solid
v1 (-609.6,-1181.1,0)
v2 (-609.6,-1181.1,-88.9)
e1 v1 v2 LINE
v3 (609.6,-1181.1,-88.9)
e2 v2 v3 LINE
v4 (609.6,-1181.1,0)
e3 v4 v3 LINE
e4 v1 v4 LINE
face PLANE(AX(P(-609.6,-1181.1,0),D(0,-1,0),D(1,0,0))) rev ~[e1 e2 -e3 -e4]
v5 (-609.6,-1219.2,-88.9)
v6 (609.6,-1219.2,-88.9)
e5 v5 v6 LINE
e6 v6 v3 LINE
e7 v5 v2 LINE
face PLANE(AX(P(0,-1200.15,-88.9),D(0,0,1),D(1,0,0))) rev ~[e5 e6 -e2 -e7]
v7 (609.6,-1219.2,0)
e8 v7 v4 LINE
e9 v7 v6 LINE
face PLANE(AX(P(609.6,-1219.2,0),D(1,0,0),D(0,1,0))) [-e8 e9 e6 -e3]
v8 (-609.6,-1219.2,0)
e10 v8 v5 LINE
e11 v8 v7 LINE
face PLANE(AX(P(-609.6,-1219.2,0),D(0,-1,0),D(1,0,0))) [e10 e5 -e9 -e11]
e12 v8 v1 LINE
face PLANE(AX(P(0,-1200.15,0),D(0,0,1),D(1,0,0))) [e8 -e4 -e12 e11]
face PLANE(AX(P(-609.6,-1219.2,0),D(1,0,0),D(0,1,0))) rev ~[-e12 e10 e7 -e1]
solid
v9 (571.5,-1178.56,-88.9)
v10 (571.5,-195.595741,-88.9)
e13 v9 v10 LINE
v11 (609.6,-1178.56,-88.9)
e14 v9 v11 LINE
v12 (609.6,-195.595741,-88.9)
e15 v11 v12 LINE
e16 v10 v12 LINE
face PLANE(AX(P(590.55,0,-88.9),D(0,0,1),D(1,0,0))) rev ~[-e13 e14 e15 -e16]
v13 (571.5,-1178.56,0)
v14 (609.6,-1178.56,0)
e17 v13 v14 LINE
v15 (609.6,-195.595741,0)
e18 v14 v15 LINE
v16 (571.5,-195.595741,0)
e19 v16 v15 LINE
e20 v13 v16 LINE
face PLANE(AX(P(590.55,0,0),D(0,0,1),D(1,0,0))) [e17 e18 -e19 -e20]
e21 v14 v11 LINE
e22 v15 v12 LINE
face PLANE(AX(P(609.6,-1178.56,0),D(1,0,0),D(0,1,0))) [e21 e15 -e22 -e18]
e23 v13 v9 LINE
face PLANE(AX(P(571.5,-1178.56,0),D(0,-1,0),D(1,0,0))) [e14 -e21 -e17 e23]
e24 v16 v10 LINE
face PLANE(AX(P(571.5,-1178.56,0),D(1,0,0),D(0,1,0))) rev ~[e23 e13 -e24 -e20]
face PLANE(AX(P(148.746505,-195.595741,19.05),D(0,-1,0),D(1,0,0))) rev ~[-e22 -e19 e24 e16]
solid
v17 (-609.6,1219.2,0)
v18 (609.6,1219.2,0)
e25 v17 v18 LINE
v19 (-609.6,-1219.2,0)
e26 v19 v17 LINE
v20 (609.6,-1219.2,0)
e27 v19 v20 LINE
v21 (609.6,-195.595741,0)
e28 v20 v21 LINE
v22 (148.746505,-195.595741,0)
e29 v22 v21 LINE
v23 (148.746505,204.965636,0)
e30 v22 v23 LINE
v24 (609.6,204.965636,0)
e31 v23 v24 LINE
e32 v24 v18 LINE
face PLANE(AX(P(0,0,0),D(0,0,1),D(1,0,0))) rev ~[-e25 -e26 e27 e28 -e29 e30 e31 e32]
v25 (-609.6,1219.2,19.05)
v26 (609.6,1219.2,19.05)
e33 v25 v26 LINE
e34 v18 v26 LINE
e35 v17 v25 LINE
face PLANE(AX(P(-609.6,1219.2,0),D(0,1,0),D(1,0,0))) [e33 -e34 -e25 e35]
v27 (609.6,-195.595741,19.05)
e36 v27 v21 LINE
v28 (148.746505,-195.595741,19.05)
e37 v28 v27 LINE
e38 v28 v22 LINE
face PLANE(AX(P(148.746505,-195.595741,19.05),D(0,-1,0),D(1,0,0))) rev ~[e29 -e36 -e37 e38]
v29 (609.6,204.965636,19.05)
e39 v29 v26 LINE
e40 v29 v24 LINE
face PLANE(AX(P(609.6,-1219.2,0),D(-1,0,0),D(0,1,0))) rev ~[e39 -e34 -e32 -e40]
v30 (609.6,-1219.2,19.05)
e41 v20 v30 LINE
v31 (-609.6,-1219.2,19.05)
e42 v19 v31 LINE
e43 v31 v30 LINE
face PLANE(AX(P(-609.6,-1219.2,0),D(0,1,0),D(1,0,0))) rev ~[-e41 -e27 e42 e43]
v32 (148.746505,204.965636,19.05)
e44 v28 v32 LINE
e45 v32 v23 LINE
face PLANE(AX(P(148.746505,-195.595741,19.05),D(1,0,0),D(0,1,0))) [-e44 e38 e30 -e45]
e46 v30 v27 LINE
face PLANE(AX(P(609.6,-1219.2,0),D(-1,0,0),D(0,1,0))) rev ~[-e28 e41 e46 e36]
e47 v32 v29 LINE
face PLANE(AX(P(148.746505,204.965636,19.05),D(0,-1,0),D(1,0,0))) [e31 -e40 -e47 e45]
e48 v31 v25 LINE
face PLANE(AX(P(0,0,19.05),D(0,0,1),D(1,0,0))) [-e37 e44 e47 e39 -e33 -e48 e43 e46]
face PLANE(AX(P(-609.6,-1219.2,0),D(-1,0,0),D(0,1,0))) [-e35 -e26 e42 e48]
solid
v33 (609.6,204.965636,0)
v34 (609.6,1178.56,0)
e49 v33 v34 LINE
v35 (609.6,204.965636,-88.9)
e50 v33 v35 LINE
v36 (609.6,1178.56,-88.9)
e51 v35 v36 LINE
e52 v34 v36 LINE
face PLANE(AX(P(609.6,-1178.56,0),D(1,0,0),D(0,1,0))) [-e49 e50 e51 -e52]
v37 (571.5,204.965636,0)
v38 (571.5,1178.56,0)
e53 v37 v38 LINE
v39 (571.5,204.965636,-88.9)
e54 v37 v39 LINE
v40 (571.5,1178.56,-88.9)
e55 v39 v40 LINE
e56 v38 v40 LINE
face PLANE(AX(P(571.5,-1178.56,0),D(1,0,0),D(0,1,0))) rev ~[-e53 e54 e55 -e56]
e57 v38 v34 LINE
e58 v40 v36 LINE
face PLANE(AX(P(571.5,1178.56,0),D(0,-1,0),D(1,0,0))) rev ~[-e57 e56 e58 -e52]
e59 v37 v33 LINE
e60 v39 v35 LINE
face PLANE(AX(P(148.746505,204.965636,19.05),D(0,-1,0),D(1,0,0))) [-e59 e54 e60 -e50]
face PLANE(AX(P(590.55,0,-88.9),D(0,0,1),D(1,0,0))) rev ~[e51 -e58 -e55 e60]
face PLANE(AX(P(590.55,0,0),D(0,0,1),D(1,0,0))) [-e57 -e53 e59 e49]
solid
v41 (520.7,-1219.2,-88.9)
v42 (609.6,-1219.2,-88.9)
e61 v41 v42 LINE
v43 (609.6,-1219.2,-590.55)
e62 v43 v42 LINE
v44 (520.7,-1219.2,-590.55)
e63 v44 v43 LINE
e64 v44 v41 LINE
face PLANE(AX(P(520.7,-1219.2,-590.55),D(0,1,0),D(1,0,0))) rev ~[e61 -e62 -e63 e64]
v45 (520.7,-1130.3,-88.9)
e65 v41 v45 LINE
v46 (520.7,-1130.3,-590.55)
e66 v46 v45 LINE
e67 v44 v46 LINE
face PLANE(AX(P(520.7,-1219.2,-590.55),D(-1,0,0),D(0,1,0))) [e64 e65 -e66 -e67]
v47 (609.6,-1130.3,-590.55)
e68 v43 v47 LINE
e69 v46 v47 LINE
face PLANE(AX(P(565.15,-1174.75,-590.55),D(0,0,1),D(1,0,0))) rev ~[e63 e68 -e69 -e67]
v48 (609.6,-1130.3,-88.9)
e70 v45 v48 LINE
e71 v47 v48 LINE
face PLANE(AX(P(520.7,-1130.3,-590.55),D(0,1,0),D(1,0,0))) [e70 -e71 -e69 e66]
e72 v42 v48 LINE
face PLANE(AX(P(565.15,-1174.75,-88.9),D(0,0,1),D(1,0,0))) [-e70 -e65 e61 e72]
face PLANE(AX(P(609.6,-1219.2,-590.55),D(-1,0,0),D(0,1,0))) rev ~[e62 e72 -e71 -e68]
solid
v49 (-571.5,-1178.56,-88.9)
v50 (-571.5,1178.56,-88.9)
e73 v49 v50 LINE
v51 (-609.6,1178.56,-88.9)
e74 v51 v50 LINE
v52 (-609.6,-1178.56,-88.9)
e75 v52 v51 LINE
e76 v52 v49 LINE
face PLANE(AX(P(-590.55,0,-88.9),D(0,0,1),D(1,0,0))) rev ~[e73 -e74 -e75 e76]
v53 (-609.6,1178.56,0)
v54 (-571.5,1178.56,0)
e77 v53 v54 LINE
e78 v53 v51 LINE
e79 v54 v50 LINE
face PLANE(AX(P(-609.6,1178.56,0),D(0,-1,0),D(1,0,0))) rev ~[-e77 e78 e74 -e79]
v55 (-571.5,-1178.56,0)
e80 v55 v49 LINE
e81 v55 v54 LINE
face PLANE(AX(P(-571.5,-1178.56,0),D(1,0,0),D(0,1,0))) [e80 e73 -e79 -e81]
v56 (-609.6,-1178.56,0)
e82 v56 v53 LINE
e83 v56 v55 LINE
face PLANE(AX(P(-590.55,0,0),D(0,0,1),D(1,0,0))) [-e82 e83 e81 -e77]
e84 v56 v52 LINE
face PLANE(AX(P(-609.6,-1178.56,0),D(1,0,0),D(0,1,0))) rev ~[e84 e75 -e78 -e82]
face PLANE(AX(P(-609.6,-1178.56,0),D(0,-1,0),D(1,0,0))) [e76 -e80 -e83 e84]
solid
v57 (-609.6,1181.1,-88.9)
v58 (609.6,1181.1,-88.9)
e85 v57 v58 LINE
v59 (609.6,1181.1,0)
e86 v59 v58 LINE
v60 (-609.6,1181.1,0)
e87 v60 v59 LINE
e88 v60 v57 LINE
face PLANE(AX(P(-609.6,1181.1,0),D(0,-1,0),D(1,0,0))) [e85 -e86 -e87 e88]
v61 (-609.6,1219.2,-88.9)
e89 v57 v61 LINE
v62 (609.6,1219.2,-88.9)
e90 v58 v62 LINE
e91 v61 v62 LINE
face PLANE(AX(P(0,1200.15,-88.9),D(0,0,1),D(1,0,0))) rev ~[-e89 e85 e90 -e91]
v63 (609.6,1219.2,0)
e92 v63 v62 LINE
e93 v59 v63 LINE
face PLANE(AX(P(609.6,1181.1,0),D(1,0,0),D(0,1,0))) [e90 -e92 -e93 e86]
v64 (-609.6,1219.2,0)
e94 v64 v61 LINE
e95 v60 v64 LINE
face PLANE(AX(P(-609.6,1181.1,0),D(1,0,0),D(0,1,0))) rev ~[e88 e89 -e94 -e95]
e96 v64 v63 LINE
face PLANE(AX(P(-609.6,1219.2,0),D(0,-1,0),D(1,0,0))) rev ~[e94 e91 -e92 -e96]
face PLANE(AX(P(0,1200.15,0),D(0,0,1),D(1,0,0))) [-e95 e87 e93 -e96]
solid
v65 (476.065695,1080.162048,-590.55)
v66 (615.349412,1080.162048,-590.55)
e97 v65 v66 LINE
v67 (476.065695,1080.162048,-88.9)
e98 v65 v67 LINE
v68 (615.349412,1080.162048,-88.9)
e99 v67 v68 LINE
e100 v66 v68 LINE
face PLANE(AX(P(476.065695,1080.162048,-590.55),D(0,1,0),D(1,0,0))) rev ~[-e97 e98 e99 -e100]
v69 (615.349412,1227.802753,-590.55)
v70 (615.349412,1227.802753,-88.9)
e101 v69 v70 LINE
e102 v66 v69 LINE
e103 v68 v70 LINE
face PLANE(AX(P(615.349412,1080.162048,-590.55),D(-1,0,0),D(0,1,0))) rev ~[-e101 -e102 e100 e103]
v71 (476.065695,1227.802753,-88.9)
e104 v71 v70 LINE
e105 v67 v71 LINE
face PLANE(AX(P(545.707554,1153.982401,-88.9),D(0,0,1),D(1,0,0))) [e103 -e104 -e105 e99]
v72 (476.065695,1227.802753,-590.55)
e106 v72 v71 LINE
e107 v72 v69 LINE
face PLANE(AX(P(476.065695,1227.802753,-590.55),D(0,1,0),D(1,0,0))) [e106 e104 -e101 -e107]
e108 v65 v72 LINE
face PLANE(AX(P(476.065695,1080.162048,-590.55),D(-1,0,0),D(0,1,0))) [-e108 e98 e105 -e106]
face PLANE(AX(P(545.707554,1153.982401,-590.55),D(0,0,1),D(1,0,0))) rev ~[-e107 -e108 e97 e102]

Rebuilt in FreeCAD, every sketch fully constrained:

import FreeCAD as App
import Part
import Sketcher
from FreeCAD import Vector
Q = App.Units.Quantity

doc = App.newDocument("Part")
body = doc.addObject("PartDesign::Body", "Body")

# Sketch on XY plane
sketch1 = body.newObject("Sketcher::SketchObject", "Sketch")
sketch1.AttachmentSupport = (doc.getObject("XY_Plane"), [""])
sketch1.MapMode = "FlatFace"
sketch1.addGeometry(Part.LineSegment(Vector(-609.6, 1219.2, 0), Vector(-609.6, -1219.2, 0)), False)
sketch1.addGeometry(Part.LineSegment(Vector(-609.6, -1219.2, 0), Vector(609.6, -1219.2, 0)), False)
sketch1.addGeometry(Part.LineSegment(Vector(609.6, -1219.2, 0), Vector(609.6, 1219.2, 0)), False)
sketch1.addGeometry(Part.LineSegment(Vector(609.6, 1219.2, 0), Vector(-609.6, 1219.2, 0)), False)
sketch1.addConstraint(Sketcher.Constraint("Coincident", 0, 2, 1, 1))
sketch1.addConstraint(Sketcher.Constraint("Coincident", 1, 2, 2, 1))
sketch1.addConstraint(Sketcher.Constraint("Coincident", 2, 2, 3, 1))
sketch1.addConstraint(Sketcher.Constraint("Coincident", 3, 2, 0, 1))
sketch1.addConstraint(Sketcher.Constraint("Vertical", 0))
sketch1.addConstraint(Sketcher.Constraint("Horizontal", 1))
sketch1.addConstraint(Sketcher.Constraint("Vertical", 2))
sketch1.addConstraint(Sketcher.Constraint("Horizontal", 3))
sketch1.addConstraint(Sketcher.Constraint("Symmetric", 0, 2, 2, 2, -1, 1))
sketch1.addConstraint(Sketcher.Constraint("DistanceX", 1, 1, 1, 2, Q("48 in")))
sketch1.addConstraint(Sketcher.Constraint("DistanceY", 0, 2, 0, 1, Q("96 in")))
pad1 = body.newObject("PartDesign::Pad", "Pad")
pad1.Profile = sketch1
pad1.Length = Q("0.75 in")
body2 = doc.addObject("PartDesign::Body", "Body001")

# Sketch on XY plane
sketch2 = body2.newObject("Sketcher::SketchObject", "Sketch001")
sketch2.AttachmentSupport = (doc.getObject("XY_Plane001"), [""])
sketch2.MapMode = "FlatFace"
sketch2.addGeometry(Part.LineSegment(Vector(-609.6, 1219.2, 0), Vector(-609.6, 1181.1, 0)), False)
sketch2.addGeometry(Part.LineSegment(Vector(-609.6, 1181.1, 0), Vector(609.6, 1181.1, 0)), False)
sketch2.addGeometry(Part.LineSegment(Vector(609.6, 1181.1, 0), Vector(609.6, 1219.2, 0)), False)
sketch2.addGeometry(Part.LineSegment(Vector(609.6, 1219.2, 0), Vector(-609.6, 1219.2, 0)), False)
sketch2.addConstraint(Sketcher.Constraint("Coincident", 0, 2, 1, 1))
sketch2.addConstraint(Sketcher.Constraint("Coincident", 1, 2, 2, 1))
sketch2.addConstraint(Sketcher.Constraint("Coincident", 2, 2, 3, 1))
sketch2.addConstraint(Sketcher.Constraint("Coincident", 3, 2, 0, 1))
sketch2.addConstraint(Sketcher.Constraint("Vertical", 0))
sketch2.addConstraint(Sketcher.Constraint("Horizontal", 1))
sketch2.addConstraint(Sketcher.Constraint("Vertical", 2))
sketch2.addConstraint(Sketcher.Constraint("Horizontal", 3))
sketch2.addConstraint(Sketcher.Constraint("DistanceX", 1, 1, 1, 2, Q("48 in")))
sketch2.addConstraint(Sketcher.Constraint("DistanceY", 0, 2, 0, 1, Q("1.5 in")))
sketch2.addConstraint(Sketcher.Constraint("DistanceX", 0, 2, -1, 1, Q("24 in")))
sketch2.addConstraint(Sketcher.Constraint("DistanceY", -1, 1, 2, 2, Q("48 in")))
pad2 = body2.newObject("PartDesign::Pad", "Pad001")
pad2.Profile = sketch2
pad2.Length = Q("3.5 in")
pad2.Reversed = True
body3 = doc.addObject("PartDesign::Body", "Body002")

# Sketch on XY plane
sketch3 = body3.newObject("Sketcher::SketchObject", "Sketch002")
sketch3.AttachmentSupport = (doc.getObject("XY_Plane002"), [""])
sketch3.MapMode = "FlatFace"
sketch3.addGeometry(Part.LineSegment(Vector(-609.6, -1181.1, 0), Vector(-609.6, -1219.2, 0)), False)
sketch3.addGeometry(Part.LineSegment(Vector(-609.6, -1219.2, 0), Vector(609.6, -1219.2, 0)), False)
sketch3.addGeometry(Part.LineSegment(Vector(609.6, -1219.2, 0), Vector(609.6, -1181.1, 0)), False)
sketch3.addGeometry(Part.LineSegment(Vector(609.6, -1181.1, 0), Vector(-609.6, -1181.1, 0)), False)
sketch3.addConstraint(Sketcher.Constraint("Coincident", 0, 2, 1, 1))
sketch3.addConstraint(Sketcher.Constraint("Coincident", 1, 2, 2, 1))
sketch3.addConstraint(Sketcher.Constraint("Coincident", 2, 2, 3, 1))
sketch3.addConstraint(Sketcher.Constraint("Coincident", 3, 2, 0, 1))
sketch3.addConstraint(Sketcher.Constraint("Vertical", 0))
sketch3.addConstraint(Sketcher.Constraint("Horizontal", 1))
sketch3.addConstraint(Sketcher.Constraint("Vertical", 2))
sketch3.addConstraint(Sketcher.Constraint("Horizontal", 3))
sketch3.addConstraint(Sketcher.Constraint("DistanceX", 1, 1, 1, 2, Q("48 in")))
sketch3.addConstraint(Sketcher.Constraint("DistanceY", 0, 2, 0, 1, Q("1.5 in")))
sketch3.addConstraint(Sketcher.Constraint("DistanceX", 0, 2, -1, 1, Q("24 in")))
sketch3.addConstraint(Sketcher.Constraint("DistanceY", 0, 2, -1, 1, Q("48 in")))
pad3 = body3.newObject("PartDesign::Pad", "Pad002")
pad3.Profile = sketch3
pad3.Length = Q("3.5 in")
pad3.Reversed = True
body4 = doc.addObject("PartDesign::Body", "Body003")

# Sketch on XY plane
sketch4 = body4.newObject("Sketcher::SketchObject", "Sketch003")
sketch4.AttachmentSupport = (doc.getObject("XY_Plane003"), [""])
sketch4.MapMode = "FlatFace"
sketch4.addGeometry(Part.LineSegment(Vector(-609.6, 1178.56, 0), Vector(-609.6, -1178.56, 0)), False)
sketch4.addGeometry(Part.LineSegment(Vector(-609.6, -1178.56, 0), Vector(-571.5, -1178.56, 0)), False)
sketch4.addGeometry(Part.LineSegment(Vector(-571.5, -1178.56, 0), Vector(-571.5, 1178.56, 0)), False)
sketch4.addGeometry(Part.LineSegment(Vector(-571.5, 1178.56, 0), Vector(-609.6, 1178.56, 0)), False)
sketch4.addConstraint(Sketcher.Constraint("Coincident", 0, 2, 1, 1))
sketch4.addConstraint(Sketcher.Constraint("Coincident", 1, 2, 2, 1))
sketch4.addConstraint(Sketcher.Constraint("Coincident", 2, 2, 3, 1))
sketch4.addConstraint(Sketcher.Constraint("Coincident", 3, 2, 0, 1))
sketch4.addConstraint(Sketcher.Constraint("Vertical", 0))
sketch4.addConstraint(Sketcher.Constraint("Horizontal", 1))
sketch4.addConstraint(Sketcher.Constraint("Vertical", 2))
sketch4.addConstraint(Sketcher.Constraint("Horizontal", 3))
sketch4.addConstraint(Sketcher.Constraint("DistanceX", 1, 1, 1, 2, Q("1.5 in")))
sketch4.addConstraint(Sketcher.Constraint("DistanceY", 0, 2, 0, 1, Q("92.8 in")))
sketch4.addConstraint(Sketcher.Constraint("DistanceX", 0, 2, -1, 1, Q("24 in")))
sketch4.addConstraint(Sketcher.Constraint("DistanceY", 0, 2, -1, 1, Q("46.4 in")))
pad4 = body4.newObject("PartDesign::Pad", "Pad003")
pad4.Profile = sketch4
pad4.Length = Q("3.5 in")
pad4.Reversed = True
body5 = doc.addObject("PartDesign::Body", "Body004")

# Sketch on XY plane
sketch5 = body5.newObject("Sketcher::SketchObject", "Sketch004")
sketch5.AttachmentSupport = (doc.getObject("XY_Plane004"), [""])
sketch5.MapMode = "FlatFace"
sketch5.addGeometry(Part.LineSegment(Vector(571.5, 1178.56, 0), Vector(571.5, -1178.56, 0)), False)
sketch5.addGeometry(Part.LineSegment(Vector(571.5, -1178.56, 0), Vector(609.6, -1178.56, 0)), False)
sketch5.addGeometry(Part.LineSegment(Vector(609.6, -1178.56, 0), Vector(609.6, 1178.56, 0)), False)
sketch5.addGeometry(Part.LineSegment(Vector(609.6, 1178.56, 0), Vector(571.5, 1178.56, 0)), False)
sketch5.addConstraint(Sketcher.Constraint("Coincident", 0, 2, 1, 1))
sketch5.addConstraint(Sketcher.Constraint("Coincident", 1, 2, 2, 1))
sketch5.addConstraint(Sketcher.Constraint("Coincident", 2, 2, 3, 1))
sketch5.addConstraint(Sketcher.Constraint("Coincident", 3, 2, 0, 1))
sketch5.addConstraint(Sketcher.Constraint("Vertical", 0))
sketch5.addConstraint(Sketcher.Constraint("Horizontal", 1))
sketch5.addConstraint(Sketcher.Constraint("Vertical", 2))
sketch5.addConstraint(Sketcher.Constraint("Horizontal", 3))
sketch5.addConstraint(Sketcher.Constraint("DistanceX", 1, 1, 1, 2, Q("1.5 in")))
sketch5.addConstraint(Sketcher.Constraint("DistanceY", 0, 2, 0, 1, Q("92.8 in")))
sketch5.addConstraint(Sketcher.Constraint("DistanceX", -1, 1, 1, 2, Q("24 in")))
sketch5.addConstraint(Sketcher.Constraint("DistanceY", 0, 2, -1, 1, Q("46.4 in")))
pad5 = body5.newObject("PartDesign::Pad", "Pad004")
pad5.Profile = sketch5
pad5.Length = Q("3.5 in")
pad5.Reversed = True
body6 = doc.addObject("PartDesign::Body", "Body005")

# Sketch on XY plane
sketch6 = body6.newObject("Sketcher::SketchObject", "Sketch005")
sketch6.AttachmentSupport = (doc.getObject("XY_Plane005"), [""])
sketch6.MapMode = "FlatFace"
sketch6.AttachmentOffset = App.Placement(Vector(0, 0, 0.75 * 25.4), App.Rotation())
sketch6.addGeometry(Part.LineSegment(Vector(148.746505, 204.965636, 0), Vector(148.746505, -195.595741, 0)), False)
sketch6.addGeometry(Part.LineSegment(Vector(148.746505, -195.595741, 0), Vector(609.6, -195.595741, 0)), False)
sketch6.addGeometry(Part.LineSegment(Vector(609.6, -195.595741, 0), Vector(609.6, 204.965636, 0)), False)
sketch6.addGeometry(Part.LineSegment(Vector(609.6, 204.965636, 0), Vector(148.746505, 204.965636, 0)), False)
sketch6.addConstraint(Sketcher.Constraint("Coincident", 0, 2, 1, 1))
sketch6.addConstraint(Sketcher.Constraint("Coincident", 1, 2, 2, 1))
sketch6.addConstraint(Sketcher.Constraint("Coincident", 2, 2, 3, 1))
sketch6.addConstraint(Sketcher.Constraint("Coincident", 3, 2, 0, 1))
sketch6.addConstraint(Sketcher.Constraint("Vertical", 0))
sketch6.addConstraint(Sketcher.Constraint("Horizontal", 1))
sketch6.addConstraint(Sketcher.Constraint("Vertical", 2))
sketch6.addConstraint(Sketcher.Constraint("Horizontal", 3))
sketch6.addConstraint(Sketcher.Constraint("DistanceX", -1, 1, 1, 2, Q("24 in")))
sketch6.addConstraint(Sketcher.Constraint("DistanceX", 1, 1, 1, 2, 460.853495))
sketch6.addConstraint(Sketcher.Constraint("DistanceY", 0, 2, 0, 1, 400.561377))
sketch6.addConstraint(Sketcher.Constraint("DistanceY", 0, 2, -1, 1, 195.595741))
pad6 = body6.newObject("PartDesign::Pad", "Pad005")
pad6.Profile = sketch6
pad6.Length = 107.951
pad6.Reversed = True
doc.recompute()

body7 = doc.addObject("PartDesign::Body", "Body006")
body7.BaseFeature = body6
boolean = body.newObject("PartDesign::Boolean", "Boolean")
boolean.Type = "Cut"
boolean.addObjects([body7])
doc.recompute()
body5.AllowCompound = True
doc.recompute()

boolean2 = body5.newObject("PartDesign::Boolean", "Boolean001")
boolean2.Type = "Cut"
boolean2.addObjects([body6])
body8 = doc.addObject("PartDesign::Body", "Body007")

# Sketch on XY plane
sketch7 = body8.newObject("Sketcher::SketchObject", "Sketch006")
sketch7.AttachmentSupport = (doc.getObject("XY_Plane007"), [""])
sketch7.MapMode = "FlatFace"
sketch7.AttachmentOffset = App.Placement(Vector(0, 0, -23.25 * 25.4), App.Rotation())
sketch7.addGeometry(Part.LineSegment(Vector(520.7, -1130.3, 0), Vector(520.7, -1219.2, 0)), False)
sketch7.addGeometry(Part.LineSegment(Vector(520.7, -1219.2, 0), Vector(609.6, -1219.2, 0)), False)
sketch7.addGeometry(Part.LineSegment(Vector(609.6, -1219.2, 0), Vector(609.6, -1130.3, 0)), False)
sketch7.addGeometry(Part.LineSegment(Vector(609.6, -1130.3, 0), Vector(520.7, -1130.3, 0)), False)
sketch7.addConstraint(Sketcher.Constraint("Coincident", 0, 2, 1, 1))
sketch7.addConstraint(Sketcher.Constraint("Coincident", 1, 2, 2, 1))
sketch7.addConstraint(Sketcher.Constraint("Coincident", 2, 2, 3, 1))
sketch7.addConstraint(Sketcher.Constraint("Coincident", 3, 2, 0, 1))
sketch7.addConstraint(Sketcher.Constraint("Vertical", 0))
sketch7.addConstraint(Sketcher.Constraint("Horizontal", 1))
sketch7.addConstraint(Sketcher.Constraint("Vertical", 2))
sketch7.addConstraint(Sketcher.Constraint("Horizontal", 3))
sketch7.addConstraint(Sketcher.Constraint("Equal", 3, 0))
sketch7.addConstraint(Sketcher.Constraint("DistanceX", 1, 1, 1, 2, Q("3.5 in")))
sketch7.addConstraint(Sketcher.Constraint("DistanceY", 0, 2, -1, 1, Q("48 in")))
sketch7.addConstraint(Sketcher.Constraint("DistanceX", -1, 1, 1, 2, Q("24 in")))
pad7 = body8.newObject("PartDesign::Pad", "Pad006")
pad7.Profile = sketch7
pad7.Length = Q("19.75 in")
body9 = doc.addObject("PartDesign::Body", "Body008")

# Sketch on XY plane
sketch8 = body9.newObject("Sketcher::SketchObject", "Sketch007")
sketch8.AttachmentSupport = (doc.getObject("XY_Plane008"), [""])
sketch8.MapMode = "FlatFace"
sketch8.AttachmentOffset = App.Placement(Vector(0, 0, -23.25 * 25.4), App.Rotation())
sketch8.addGeometry(Part.LineSegment(Vector(476.065695, 1227.802753, 0), Vector(476.065695, 1080.162048, 0)), False)
sketch8.addGeometry(Part.LineSegment(Vector(476.065695, 1080.162048, 0), Vector(615.349412, 1080.162048, 0)), False)
sketch8.addGeometry(Part.LineSegment(Vector(615.349412, 1080.162048, 0), Vector(615.349412, 1227.802753, 0)), False)
sketch8.addGeometry(Part.LineSegment(Vector(615.349412, 1227.802753, 0), Vector(476.065695, 1227.802753, 0)), False)
sketch8.addConstraint(Sketcher.Constraint("Coincident", 0, 2, 1, 1))
sketch8.addConstraint(Sketcher.Constraint("Coincident", 1, 2, 2, 1))
sketch8.addConstraint(Sketcher.Constraint("Coincident", 2, 2, 3, 1))
sketch8.addConstraint(Sketcher.Constraint("Coincident", 3, 2, 0, 1))
sketch8.addConstraint(Sketcher.Constraint("Vertical", 0))
sketch8.addConstraint(Sketcher.Constraint("Horizontal", 1))
sketch8.addConstraint(Sketcher.Constraint("Vertical", 2))
sketch8.addConstraint(Sketcher.Constraint("Horizontal", 3))
sketch8.addConstraint(Sketcher.Constraint("DistanceX", 1, 1, 1, 2, 139.283717))
sketch8.addConstraint(Sketcher.Constraint("DistanceY", 0, 2, 0, 1, 147.640705))
sketch8.addConstraint(Sketcher.Constraint("DistanceY", -1, 1, 0, 2, 1080.162048))
sketch8.addConstraint(Sketcher.Constraint("DistanceX", -1, 1, 1, 2, 615.349412))
pad8 = body9.newObject("PartDesign::Pad", "Pad007")
pad8.Profile = sketch8
pad8.Length = Q("19.75 in")

doc.recompute()
